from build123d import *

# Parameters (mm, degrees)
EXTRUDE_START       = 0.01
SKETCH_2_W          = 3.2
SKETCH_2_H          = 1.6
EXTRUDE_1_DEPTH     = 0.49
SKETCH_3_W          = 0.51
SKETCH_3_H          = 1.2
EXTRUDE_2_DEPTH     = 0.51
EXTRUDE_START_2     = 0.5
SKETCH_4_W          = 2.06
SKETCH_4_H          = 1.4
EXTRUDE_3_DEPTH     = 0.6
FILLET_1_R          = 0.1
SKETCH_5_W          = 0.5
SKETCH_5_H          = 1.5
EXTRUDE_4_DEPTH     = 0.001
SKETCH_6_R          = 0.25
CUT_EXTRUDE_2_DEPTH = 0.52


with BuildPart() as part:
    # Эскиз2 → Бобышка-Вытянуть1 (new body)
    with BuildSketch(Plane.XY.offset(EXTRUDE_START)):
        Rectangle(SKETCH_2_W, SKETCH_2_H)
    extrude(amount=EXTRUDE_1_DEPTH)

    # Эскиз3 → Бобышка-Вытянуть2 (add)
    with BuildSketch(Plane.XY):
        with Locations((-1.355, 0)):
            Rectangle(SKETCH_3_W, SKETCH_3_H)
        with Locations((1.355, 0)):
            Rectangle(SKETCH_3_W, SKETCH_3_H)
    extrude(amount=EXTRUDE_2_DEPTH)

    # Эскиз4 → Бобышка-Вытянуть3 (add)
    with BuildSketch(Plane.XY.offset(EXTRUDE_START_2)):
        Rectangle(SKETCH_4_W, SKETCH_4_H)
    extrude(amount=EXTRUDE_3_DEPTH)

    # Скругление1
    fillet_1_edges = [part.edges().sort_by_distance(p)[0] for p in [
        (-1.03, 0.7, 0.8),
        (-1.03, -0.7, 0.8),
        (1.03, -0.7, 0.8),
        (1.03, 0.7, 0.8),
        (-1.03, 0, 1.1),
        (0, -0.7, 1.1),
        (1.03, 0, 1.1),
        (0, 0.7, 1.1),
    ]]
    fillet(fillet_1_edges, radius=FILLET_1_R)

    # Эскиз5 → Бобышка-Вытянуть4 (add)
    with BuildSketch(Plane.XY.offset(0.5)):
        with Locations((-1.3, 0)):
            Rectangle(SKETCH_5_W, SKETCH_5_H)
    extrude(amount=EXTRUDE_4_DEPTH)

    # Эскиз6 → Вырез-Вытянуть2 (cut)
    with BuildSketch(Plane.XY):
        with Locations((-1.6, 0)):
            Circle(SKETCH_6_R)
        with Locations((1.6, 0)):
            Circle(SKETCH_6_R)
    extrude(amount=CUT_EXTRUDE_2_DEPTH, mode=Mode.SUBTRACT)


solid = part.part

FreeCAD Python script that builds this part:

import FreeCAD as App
import Part
import Sketcher

V = App.Vector
Q = App.Units.Quantity


def edges_at(feature, points):
    """Names of the edges that pass closest to the given points."""
    edges = feature.Shape.Edges
    near = lambda p: min(range(len(edges)), key=lambda i: edges[i].distToShape(Part.Vertex(*p))[0])
    return sorted({f"Edge{near(p) + 1}" for p in points})

doc = App.newDocument("Part")
body = doc.addObject("PartDesign::Body", "Body")

# Sketch on XY plane
sketch1 = body.newObject("Sketcher::SketchObject", "Sketch")
sketch1.AttachmentSupport = (doc.getObject("XY_Plane"), [""])
sketch1.MapMode = "FlatFace"
sketch1.AttachmentOffset = App.Placement(V(0, 0, 0.01), App.Rotation())
sketch1.addGeometry([
    Part.LineSegment(V(-1.6, 0.8, 0), V(-1.6, -0.8, 0)),
    Part.LineSegment(V(-1.6, -0.8, 0), V(1.6, -0.8, 0)),
    Part.LineSegment(V(1.6, -0.8, 0), V(1.6, 0.8, 0)),
    Part.LineSegment(V(1.6, 0.8, 0), V(-1.6, 0.8, 0)),
], False)
sketch1.addConstraint([
    Sketcher.Constraint("Coincident", 0, 2, 1, 1),
    Sketcher.Constraint("Coincident", 1, 2, 2, 1),
    Sketcher.Constraint("Coincident", 2, 2, 3, 1),
    Sketcher.Constraint("Coincident", 3, 2, 0, 1),
    Sketcher.Constraint("Vertical", 0),
    Sketcher.Constraint("Horizontal", 1),
    Sketcher.Constraint("Vertical", 2),
    Sketcher.Constraint("Horizontal", 3),
    Sketcher.Constraint("Symmetric", 0, 2, 2, 2, -1, 1),
    Sketcher.Constraint("DistanceX", 1, 1, 1, 2, Q("3.2 mm")),
    Sketcher.Constraint("DistanceY", 0, 2, 0, 1, Q("1.6 mm")),
])
pad1 = body.newObject("PartDesign::Pad", "Pad")
pad1.Profile = sketch1
pad1.Length = 0.49

# Sketch on XY plane
sketch2 = body.newObject("Sketcher::SketchObject", "Sketch001")
sketch2.AttachmentSupport = (doc.getObject("XY_Plane"), [""])
sketch2.MapMode = "FlatFace"
sketch2.addGeometry([
    Part.LineSegment(V(-1.6, 0.6, 0), V(-1.6, -0.6, 0)),  # 0
    Part.LineSegment(V(-1.6, -0.6, 0), V(-1.1, -0.6, 0)),  # 1
    Part.LineSegment(V(-1.1, -0.6, 0), V(-1.1, 0.6, 0)),  # 2
    Part.LineSegment(V(-1.1, 0.6, 0), V(-1.6, 0.6, 0)),  # 3
    Part.LineSegment(V(1.1, 0.6, 0), V(1.1, -0.6, 0)),  # 4
    Part.LineSegment(V(1.1, -0.6, 0), V(1.6, -0.6, 0)),  # 5
    Part.LineSegment(V(1.6, -0.6, 0), V(1.6, 0.6, 0)),  # 6
    Part.LineSegment(V(1.6, 0.6, 0), V(1.1, 0.6, 0)),  # 7
], False)
sketch2.addConstraint([
    Sketcher.Constraint("Coincident", 0, 2, 1, 1),
    Sketcher.Constraint("Coincident", 1, 2, 2, 1),
    Sketcher.Constraint("Coincident", 2, 2, 3, 1),
    Sketcher.Constraint("Coincident", 3, 2, 0, 1),
    Sketcher.Constraint("Coincident", 4, 2, 5, 1),
    Sketcher.Constraint("Coincident", 5, 2, 6, 1),
    Sketcher.Constraint("Coincident", 6, 2, 7, 1),
    Sketcher.Constraint("Coincident", 7, 2, 4, 1),
    Sketcher.Constraint("Vertical", 0),
    Sketcher.Constraint("Horizontal", 1),
    Sketcher.Constraint("Vertical", 2),
    Sketcher.Constraint("Horizontal", 3),
    Sketcher.Constraint("Vertical", 4),
    Sketcher.Constraint("Horizontal", 5),
    Sketcher.Constraint("Vertical", 6),
    Sketcher.Constraint("Horizontal", 7),
    Sketcher.Constraint("Symmetric", 2, 2, 4, 2, -1, 1),
    Sketcher.Constraint("Symmetric", 0, 2, 6, 2, -1, 1),
    Sketcher.Constraint("Horizontal", 1, 2, 4, 2),
    Sketcher.Constraint("DistanceY", 0, 2, 0, 1, Q("1.2 mm")),
    Sketcher.Constraint("DistanceX", 1, 1, 1, 2, Q("0.51 mm")),
    Sketcher.Constraint("DistanceX", 1, 2, -1, 1, Q("1.1 mm")),
])
pad2 = body.newObject("PartDesign::Pad", "Pad001")
pad2.Profile = sketch2
pad2.Length = 0.51

# Sketch on XY plane
sketch3 = body.newObject("Sketcher::SketchObject", "Sketch002")
sketch3.AttachmentSupport = (doc.getObject("XY_Plane"), [""])
sketch3.MapMode = "FlatFace"
sketch3.AttachmentOffset = App.Placement(V(0, 0, 0.5), App.Rotation())
sketch3.addGeometry([
    Part.LineSegment(V(-1, 0.7, 0), V(-1, -0.7, 0)),
    Part.LineSegment(V(-1, -0.7, 0), V(1, -0.7, 0)),
    Part.LineSegment(V(1, -0.7, 0), V(1, 0.7, 0)),
    Part.LineSegment(V(1, 0.7, 0), V(-1, 0.7, 0)),
], False)
sketch3.addConstraint([
    Sketcher.Constraint("Coincident", 0, 2, 1, 1),
    Sketcher.Constraint("Coincident", 1, 2, 2, 1),
    Sketcher.Constraint("Coincident", 2, 2, 3, 1),
    Sketcher.Constraint("Coincident", 3, 2, 0, 1),
    Sketcher.Constraint("Vertical", 0),
    Sketcher.Constraint("Horizontal", 1),
    Sketcher.Constraint("Vertical", 2),
    Sketcher.Constraint("Horizontal", 3),
    Sketcher.Constraint("Symmetric", 0, 2, 2, 2, -1, 1),
    Sketcher.Constraint("DistanceY", 0, 2, 0, 1, Q("1.4 mm")),
    Sketcher.Constraint("DistanceX", 1, 1, 1, 2, Q("2.06 mm")),
])
pad3 = body.newObject("PartDesign::Pad", "Pad002")
pad3.Profile = sketch3
pad3.Length = 0.6
doc.recompute()

fillet = body.newObject("PartDesign::Fillet", "Fillet")
fillet.Base = (pad3, edges_at(pad3, [
    (-1.03, 0.7, 0.8),
    (-1.03, -0.7, 0.8),
    (1.03, -0.7, 0.8),
    (1.03, 0.7, 0.8),
    (-1.03, 0, 1.1),
    (0, -0.7, 1.1),
    (1.03, 0, 1.1),
    (0, 0.7, 1.1),
]))
fillet.Radius = 0.1

# Sketch on XY plane
sketch4 = body.newObject("Sketcher::SketchObject", "Sketch003")
sketch4.AttachmentSupport = (doc.getObject("XY_Plane"), [""])
sketch4.MapMode = "FlatFace"
sketch4.AttachmentOffset = App.Placement(V(0, 0, 0.5), App.Rotation())
sketch4.addGeometry([
    Part.LineSegment(V(-1.6, 0.8, 0), V(-1.6, -0.8, 0)),
    Part.LineSegment(V(-1.6, -0.8, 0), V(-1.1, -0.8, 0)),
    Part.LineSegment(V(-1.1, -0.8, 0), V(-1.1, 0.8, 0)),
    Part.LineSegment(V(-1.1, 0.8, 0), V(-1.6, 0.8, 0)),
], False)
sketch4.addConstraint([
    Sketcher.Constraint("Coincident", 0, 2, 1, 1),
    Sketcher.Constraint("Coincident", 1, 2, 2, 1),
    Sketcher.Constraint("Coincident", 2, 2, 3, 1),
    Sketcher.Constraint("Coincident", 3, 2, 0, 1),
    Sketcher.Constraint("Vertical", 0),
    Sketcher.Constraint("Horizontal", 1),
    Sketcher.Constraint("Vertical", 2),
    Sketcher.Constraint("Horizontal", 3),
    Sketcher.Constraint("DistanceX", 1, 1, 1, 2, Q("0.5 mm")),
    Sketcher.Constraint("DistanceY", 0, 2, 0, 1, Q("1.5 mm")),
    Sketcher.Constraint("DistanceX", 0, 2, -1, 1, Q("1.55 mm")),
    Sketcher.Constraint("DistanceY", 0, 2, -1, 1, Q("0.75 mm")),
])
pad4 = body.newObject("PartDesign::Pad", "Pad003")
pad4.Profile = sketch4
pad4.Length = 0.001

# Sketch on XY plane
sketch5 = body.newObject("Sketcher::SketchObject", "Sketch004")
sketch5.AttachmentSupport = (doc.getObject("XY_Plane"), [""])
sketch5.MapMode = "FlatFace"
sketch5.addGeometry([
    Part.Circle(V(-1.6, 0, 0), V(0, 0, 1), 0.25),
    Part.Circle(V(1.6, 0, 0), V(0, 0, 1), 0.25),
], False)
sketch5.addConstraint([
    Sketcher.Constraint("Equal", 0, 1),
    Sketcher.Constraint("Symmetric", 0, 3, 1, 3, -1, 1),
    Sketcher.Constraint("PointOnObject", 0, 3, -1),
    Sketcher.Constraint("Diameter", 0, Q("0.5 mm")),
    Sketcher.Constraint("DistanceX", 0, 3, -1, 1, Q("1.6 mm")),
])
pocket1 = body.newObject("PartDesign::Pocket", "Pocket")
pocket1.Profile = sketch5
pocket1.Length = 0.52
pocket1.Reversed = True

doc.recompute()
